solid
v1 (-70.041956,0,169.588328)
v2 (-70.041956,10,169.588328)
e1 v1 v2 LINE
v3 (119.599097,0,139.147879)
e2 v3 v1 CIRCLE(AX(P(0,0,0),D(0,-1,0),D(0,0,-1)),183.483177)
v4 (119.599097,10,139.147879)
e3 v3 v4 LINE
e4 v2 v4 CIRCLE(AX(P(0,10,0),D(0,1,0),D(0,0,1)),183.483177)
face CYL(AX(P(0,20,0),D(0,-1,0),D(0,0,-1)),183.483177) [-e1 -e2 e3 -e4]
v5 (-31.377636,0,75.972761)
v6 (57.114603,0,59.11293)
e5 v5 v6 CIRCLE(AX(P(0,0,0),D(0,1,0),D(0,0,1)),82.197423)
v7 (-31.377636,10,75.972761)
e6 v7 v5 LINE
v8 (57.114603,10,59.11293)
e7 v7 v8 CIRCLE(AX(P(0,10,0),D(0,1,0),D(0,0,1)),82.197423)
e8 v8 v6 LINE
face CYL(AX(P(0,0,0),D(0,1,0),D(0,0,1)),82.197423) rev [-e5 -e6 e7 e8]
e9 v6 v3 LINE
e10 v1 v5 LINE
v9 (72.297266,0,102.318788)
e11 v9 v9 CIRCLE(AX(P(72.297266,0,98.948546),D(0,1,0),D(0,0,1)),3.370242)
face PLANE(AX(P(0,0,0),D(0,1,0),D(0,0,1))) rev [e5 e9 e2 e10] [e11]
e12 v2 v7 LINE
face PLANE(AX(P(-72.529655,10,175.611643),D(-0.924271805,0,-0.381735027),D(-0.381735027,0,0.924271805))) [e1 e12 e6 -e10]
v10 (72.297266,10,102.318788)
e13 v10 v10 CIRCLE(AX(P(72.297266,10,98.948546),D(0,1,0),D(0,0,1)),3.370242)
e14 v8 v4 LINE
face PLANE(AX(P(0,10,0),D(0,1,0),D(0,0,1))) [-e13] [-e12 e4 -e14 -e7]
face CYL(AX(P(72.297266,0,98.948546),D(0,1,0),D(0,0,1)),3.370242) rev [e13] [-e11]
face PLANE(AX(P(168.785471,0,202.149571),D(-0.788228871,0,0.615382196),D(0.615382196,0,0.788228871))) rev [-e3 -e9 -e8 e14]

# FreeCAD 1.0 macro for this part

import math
import FreeCAD as App
import Part
import Sketcher

V = App.Vector

doc = App.newDocument("Part")
body = doc.addObject("PartDesign::Body", "Body")

# Sketch on XZ plane
sketch1 = doc.addObject("Sketcher::SketchObject", "Sketch")
body.addObject(sketch1)
sketch1.AttachmentSupport = (doc.XZ_Plane, [""])
sketch1.MapMode = "FlatFace"
sketch1.addGeometry(Part.Circle(V(0, 0, 0), V(0, 0, 1), 210), False)
sketch1.addConstraint(Sketcher.Constraint("Coincident", 0, 3, -1, 1))
sketch1.addConstraint(Sketcher.Constraint("Diameter", 0, 420.0))
pad1 = doc.addObject("PartDesign::Pad", "Pad")
body.addObject(pad1)
pad1.Profile = sketch1
pad1.Length = 10
pad1.Reversed = True

# Sketch on XZ plane
sketch2 = doc.addObject("Sketcher::SketchObject", "Sketch001")
body.addObject(sketch2)
sketch2.AttachmentSupport = (doc.XZ_Plane, [""])
sketch2.MapMode = "FlatFace"
sketch2.AttachmentOffset = App.Placement(V(0, 0, -10), App.Rotation())
sketch2.addGeometry(Part.Circle(V(0, 0, 0), V(0, 0, 1), 75), False)
sketch2.addConstraint(Sketcher.Constraint("Coincident", 0, 3, -1, 1))
sketch2.addConstraint(Sketcher.Constraint("Diameter", 0, 150.0))
pocket1 = doc.addObject("PartDesign::Pocket", "Pocket")
body.addObject(pocket1)
pocket1.Profile = sketch2
pocket1.Length = 10
pocket1.Reversed = True

# Sketch on XZ plane
sketch3 = doc.addObject("Sketcher::SketchObject", "Sketch002")
body.addObject(sketch3)
sketch3.AttachmentSupport = (doc.XZ_Plane, [""])
sketch3.MapMode = "FlatFace"
sketch3.AttachmentOffset = App.Placement(V(0, 0, -10), App.Rotation())
sketch3.addGeometry(Part.Circle(V(0, 0, 0), V(0, 0, 1), 82), False)
sketch3.addConstraint(Sketcher.Constraint("Coincident", 0, 3, -1, 1))
sketch3.addConstraint(Sketcher.Constraint("Diameter", 0, 164.394846))
pocket2 = doc.addObject("PartDesign::Pocket", "Pocket001")
body.addObject(pocket2)
pocket2.Profile = sketch3
pocket2.Length = 10
pocket2.Reversed = True

# Sketch on XZ plane
sketch4 = doc.addObject("Sketcher::SketchObject", "Sketch003")
body.addObject(sketch4)
sketch4.AttachmentSupport = (doc.XZ_Plane, [""])
sketch4.MapMode = "FlatFace"
sketch4.AttachmentOffset = App.Placement(V(0, 0, -10), App.Rotation())
sketch4.addGeometry(Part.Circle(V(0, 0, 0), V(0, 0, 1), 233), False)
sketch4.addGeometry(Part.Circle(V(0, 0, 0), V(0, 0, 1), 183), False)
sketch4.addConstraint(Sketcher.Constraint("Coincident", 0, 3, -1, 1))
sketch4.addConstraint(Sketcher.Constraint("Coincident", 1, 3, -1, 1))
sketch4.addConstraint(Sketcher.Constraint("Diameter", 0, 465.153574))
sketch4.addConstraint(Sketcher.Constraint("Diameter", 1, 366.075252))
pocket3 = doc.addObject("PartDesign::Pocket", "Pocket002")
body.addObject(pocket3)
pocket3.Profile = sketch4
pocket3.Length = 10
pocket3.Reversed = True

# Sketch on XZ plane
sketch5 = doc.addObject("Sketcher::SketchObject", "Sketch004")
body.addObject(sketch5)
sketch5.AttachmentSupport = (doc.XZ_Plane, [""])
sketch5.MapMode = "FlatFace"
sketch5.AttachmentOffset = App.Placement(V(0, 0, -10), App.Rotation())
sketch5.addGeometry(Part.LineSegment(V(-218, 133, 0), V(-169, 202, 0)), False)
sketch5.addGeometry(Part.LineSegment(V(-169, 202, 0), V(-50, 50, 0)), False)
sketch5.addGeometry(Part.LineSegment(V(-50, 50, 0), V(50, 50, 0)), False)
sketch5.addGeometry(Part.LineSegment(V(50, 50, 0), V(169, 202, 0)), False)
sketch5.addGeometry(Part.LineSegment(V(169, 202, 0), V(65, 314, 0)), False)
sketch5.addGeometry(Part.LineSegment(V(65, 314, 0), V(267, 202, 0)), False)
sketch5.addGeometry(Part.LineSegment(V(267, 202, 0), V(430, -108, 0)), False)
sketch5.addGeometry(Part.LineSegment(V(430, -108, 0), V(-17, -303, 0)), False)
sketch5.addGeometry(Part.LineSegment(V(-17, -303, 0), V(-279, -176, 0)), False)
sketch5.addGeometry(Part.LineSegment(V(-279, -176, 0), V(-218, 133, 0)), False)
sketch5.addConstraint(Sketcher.Constraint("Coincident", 0, 2, 1, 1))
sketch5.addConstraint(Sketcher.Constraint("Coincident", 1, 2, 2, 1))
sketch5.addConstraint(Sketcher.Constraint("Coincident", 2, 2, 3, 1))
sketch5.addConstraint(Sketcher.Constraint("Coincident", 3, 2, 4, 1))
sketch5.addConstraint(Sketcher.Constraint("Coincident", 4, 2, 5, 1))
sketch5.addConstraint(Sketcher.Constraint("Coincident", 5, 2, 6, 1))
sketch5.addConstraint(Sketcher.Constraint("Coincident", 6, 2, 7, 1))
sketch5.addConstraint(Sketcher.Constraint("Coincident", 7, 2, 8, 1))
sketch5.addConstraint(Sketcher.Constraint("Coincident", 8, 2, 9, 1))
sketch5.addConstraint(Sketcher.Constraint("Coincident", 9, 2, 0, 1))
sketch5.addConstraint(Sketcher.Constraint("Horizontal", 2))
sketch5.addConstraint(Sketcher.Constraint("Symmetric", 0, 2, 3, 2, -2))
sketch5.addConstraint(Sketcher.Constraint("Horizontal", 3, 2, 5, 2))
sketch5.addConstraint(Sketcher.Constraint("Equal", 1, 3))
sketch5.addConstraint(Sketcher.Constraint("DistanceX", 2, 1, 2, 2, 100.0))
sketch5.addConstraint(Sketcher.Constraint("DistanceY", -1, 1, 1, 2, 50.0))
sketch5.addConstraint(Sketcher.Constraint("Distance", 0, 84.6006))
sketch5.addConstraint(Sketcher.Constraint("Distance", 1, 193.027149))
sketch5.addConstraint(Sketcher.Constraint("DistanceX", 0, 2, -1, 1, 168.785471))
sketch5.addConstraint(Sketcher.Constraint("DistanceX", -1, 1, 4, 2, 64.609548))
sketch5.addConstraint(Sketcher.Constraint("DistanceX", -1, 1, 6, 2, 429.751389))
sketch5.addConstraint(Sketcher.Constraint("DistanceX", 8, 2, -1, 1, 278.723851))
sketch5.addConstraint(Sketcher.Constraint("DistanceX", 9, 2, -1, 1, 218.107078))
sketch5.addConstraint(Sketcher.Constraint("DistanceY", 3, 2, 4, 2, 111.598311))
sketch5.addConstraint(Sketcher.Constraint("DistanceY", 6, 2, 5, 2, 310.321618))
sketch5.addConstraint(Sketcher.Constraint("DistanceY", 7, 2, 8, 2, 126.51117))
sketch5.addConstraint(Sketcher.Constraint("Distance", 5, 231.336903))
sketch5.addConstraint(Sketcher.Constraint("Distance", 7, 487.049196))
sketch5.addConstraint(Sketcher.Constraint("Distance", 8, 291.018985))
pocket4 = doc.addObject("PartDesign::Pocket", "Pocket003")
body.addObject(pocket4)
pocket4.Profile = sketch5
pocket4.Length = 10
pocket4.Reversed = True

# Sketch on XZ plane
sketch6 = doc.addObject("Sketcher::SketchObject", "Sketch005")
body.addObject(sketch6)
sketch6.AttachmentSupport = (doc.XZ_Plane, [""])
sketch6.MapMode = "FlatFace"
sketch6.AttachmentOffset = App.Placement(V(0, 0, -10), App.Rotation())
sketch6.addGeometry(Part.LineSegment(V(0, 233, 0), V(0, 0, 0)), False)
sketch6.addGeometry(Part.LineSegment(V(0, 0, 0), V(-111, 38, 0)), False)
sketch6.addGeometry(Part.LineSegment(V(-111, 38, 0), V(-177, 161, 0)), False)
sketch6.addGeometry(Part.LineSegment(V(-177, 161, 0), V(0, 233, 0)), False)
sketch6.addConstraint(Sketcher.Constraint("Coincident", 0, 2, 1, 1))
sketch6.addConstraint(Sketcher.Constraint("Coincident", 1, 2, 2, 1))
sketch6.addConstraint(Sketcher.Constraint("Coincident", 2, 2, 3, 1))
sketch6.addConstraint(Sketcher.Constraint("Coincident", 3, 2, 0, 1))
sketch6.addConstraint(Sketcher.Constraint("Vertical", 0))
sketch6.addConstraint(Sketcher.Constraint("Coincident", 0, 2, -1, 1))
sketch6.addConstraint(Sketcher.Constraint("Distance", 1, 117.12416))
sketch6.addConstraint(Sketcher.Constraint("Distance", 2, 139.451348))
sketch6.addConstraint(Sketcher.Constraint("DistanceY", 0, 2, 0, 1, 233.405297))
sketch6.addConstraint(Sketcher.Constraint("DistanceX", 2, 2, 1, 2, 66.499371))
sketch6.addConstraint(Sketcher.Constraint("DistanceY", 1, 2, 3, 2, 195.184641))
pocket5 = doc.addObject("PartDesign::Pocket", "Pocket004")
body.addObject(pocket5)
pocket5.Profile = sketch6
pocket5.Length = 10
pocket5.Reversed = True

# Sketch on XZ plane
sketch7 = doc.addObject("Sketcher::SketchObject", "Sketch006")
body.addObject(sketch7)
sketch7.AttachmentSupport = (doc.XZ_Plane, [""])
sketch7.MapMode = "FlatFace"
sketch7.AttachmentOffset = App.Placement(V(0, 0, -10), App.Rotation())
sketch7.addGeometry(Part.LineSegment(V(0, 131, 0), V(0, 190, 0)), False)
sketch7.addGeometry(Part.ArcOfCircle(Part.Circle(V(0, 0, 0), V(0, 0, 1), 190), math.radians(49), math.radians(90)), False)
sketch7.addGeometry(Part.LineSegment(V(124, 144, 0), V(94, 106, 0)), False)
sketch7.addGeometry(Part.LineSegment(V(94, 106, 0), V(0, 131, 0)), False)
sketch7.addConstraint(Sketcher.Constraint("Coincident", 0, 2, 1, 2))
sketch7.addConstraint(Sketcher.Constraint("Coincident", 1, 1, 2, 1))
sketch7.addConstraint(Sketcher.Constraint("Coincident", 2, 2, 3, 1))
sketch7.addConstraint(Sketcher.Constraint("Coincident", 3, 2, 0, 1))
sketch7.addConstraint(Sketcher.Constraint("Vertical", 0))
sketch7.addConstraint(Sketcher.Constraint("Coincident", 1, 3, -1, 1))
sketch7.addConstraint(Sketcher.Constraint("PointOnObject", 0, 2, -2))
sketch7.addConstraint(Sketcher.Constraint("Radius", 1, 190.0))
sketch7.addConstraint(Sketcher.Constraint("DistanceY", 0, 1, 0, 2, 58.838678))
sketch7.addConstraint(Sketcher.Constraint("Distance", 2, 48.105508))
sketch7.addConstraint(Sketcher.Constraint("DistanceY", -1, 1, 1, 1, 144.290139))
sketch7.addConstraint(Sketcher.Constraint("DistanceY", -1, 1, 2, 2, 106.371988))
pad2 = doc.addObject("PartDesign::Pad", "Pad001")
body.addObject(pad2)
pad2.Profile = sketch7
pad2.Length = 10

# Sketch on XZ plane
sketch8 = doc.addObject("Sketcher::SketchObject", "Sketch007")
body.addObject(sketch8)
sketch8.AttachmentSupport = (doc.XZ_Plane, [""])
sketch8.MapMode = "FlatFace"
sketch8.AttachmentOffset = App.Placement(V(0, 0, -10), App.Rotation())
sketch8.addGeometry(Part.Circle(V(72.3, 98.9, 0), V(0, 0, 1), 3.4), False)
sketch8.addConstraint(Sketcher.Constraint("Diameter", 0, 6.740484))
sketch8.addConstraint(Sketcher.Constraint("DistanceX", -1, 1, 0, 3, 72.297266))
sketch8.addConstraint(Sketcher.Constraint("DistanceY", -1, 1, 0, 3, 98.948546))
pocket6 = doc.addObject("PartDesign::Pocket", "Pocket005")
body.addObject(pocket6)
pocket6.Profile = sketch8
pocket6.Length = 10
pocket6.Reversed = True

# Sketch on XZ plane
sketch9 = doc.addObject("Sketcher::SketchObject", "Sketch008")
body.addObject(sketch9)
sketch9.AttachmentSupport = (doc.XZ_Plane, [""])
sketch9.MapMode = "FlatFace"
sketch9.AttachmentOffset = App.Placement(V(0, 0, -10), App.Rotation())
sketch9.addGeometry(Part.LineSegment(V(-73, 176, 0), V(-31, 76, 0)), False)
sketch9.addGeometry(Part.ArcOfCircle(Part.Circle(V(0, 0, 0), V(0, 0, 1), 82), math.radians(90), math.radians(112)), False)
sketch9.addGeometry(Part.LineSegment(V(0, 82, 0), V(0, 190, 0)), False)
sketch9.addGeometry(Part.ArcOfCircle(Part.Circle(V(0, 0, 0), V(0, 0, 1), 190), math.radians(90), math.radians(112)), False)
sketch9.addConstraint(Sketcher.Constraint("Coincident", 0, 2, 1, 2))
sketch9.addConstraint(Sketcher.Constraint("Coincident", 1, 1, 2, 1))
sketch9.addConstraint(Sketcher.Constraint("Coincident", 2, 2, 3, 1))
sketch9.addConstraint(Sketcher.Constraint("Coincident", 3, 2, 0, 1))
sketch9.addConstraint(Sketcher.Constraint("Vertical", 2))
sketch9.addConstraint(Sketcher.Constraint("Coincident", 1, 3, -1, 1))
sketch9.addConstraint(Sketcher.Constraint("Coincident", 3, 3, -1, 1))
sketch9.addConstraint(Sketcher.Constraint("PointOnObject", 1, 1, -2))
sketch9.addConstraint(Sketcher.Constraint("Radius", 3, 190.0))
sketch9.addConstraint(Sketcher.Constraint("Radius", 1, 82.197423))
sketch9.addConstraint(Sketcher.Constraint("DistanceY", -1, 1, 0, 2, 75.972761))
sketch9.addConstraint(Sketcher.Constraint("DistanceX", 3, 2, 0, 2, 41.15202))
pad3 = doc.addObject("PartDesign::Pad", "Pad002")
body.addObject(pad3)
pad3.Profile = sketch9
pad3.Length = 10

# Sketch on XZ plane
sketch10 = doc.addObject("Sketcher::SketchObject", "Sketch009")
body.addObject(sketch10)
sketch10.AttachmentSupport = (doc.XZ_Plane, [""])
sketch10.MapMode = "FlatFace"
sketch10.addGeometry(Part.Circle(V(7, 3, 0), V(0, 0, 1), 221), False)
sketch10.addGeometry(Part.Circle(V(0, 0, 0), V(0, 0, 1), 189), False)
sketch10.addConstraint(Sketcher.Constraint("Coincident", 1, 3, -1, 1))
sketch10.addConstraint(Sketcher.Constraint("Diameter", 0, 442.237904))
sketch10.addConstraint(Sketcher.Constraint("Diameter", 1, 378.693125))
sketch10.addConstraint(Sketcher.Constraint("DistanceX", -1, 1, 0, 3, 6.928171))
sketch10.addConstraint(Sketcher.Constraint("DistanceY", -1, 1, 0, 3, 3.379528))
pocket7 = doc.addObject("PartDesign::Pocket", "Pocket006")
body.addObject(pocket7)
pocket7.Profile = sketch10
pocket7.Length = 20

# Sketch on XZ plane
sketch11 = doc.addObject("Sketcher::SketchObject", "Sketch010")
body.addObject(sketch11)
sketch11.AttachmentSupport = (doc.XZ_Plane, [""])
sketch11.MapMode = "FlatFace"
sketch11.addGeometry(Part.Circle(V(0, 18, 0), V(0, 0, 1), 238), False)
sketch11.addGeometry(Part.Circle(V(0, 0, 0), V(0, 0, 1), 183), False)
sketch11.addConstraint(Sketcher.Constraint("Coincident", 1, 3, -1, 1))
sketch11.addConstraint(Sketcher.Constraint("PointOnObject", 0, 3, -2))
sketch11.addConstraint(Sketcher.Constraint("Diameter", 0, 476.001111))
sketch11.addConstraint(Sketcher.Constraint("Diameter", 1, 366.966355))
sketch11.addConstraint(Sketcher.Constraint("DistanceY", -1, 1, 0, 3, 17.732727))
pocket8 = doc.addObject("PartDesign::Pocket", "Pocket007")
body.addObject(pocket8)
pocket8.Profile = sketch11
pocket8.Length = 20

doc.recompute()
